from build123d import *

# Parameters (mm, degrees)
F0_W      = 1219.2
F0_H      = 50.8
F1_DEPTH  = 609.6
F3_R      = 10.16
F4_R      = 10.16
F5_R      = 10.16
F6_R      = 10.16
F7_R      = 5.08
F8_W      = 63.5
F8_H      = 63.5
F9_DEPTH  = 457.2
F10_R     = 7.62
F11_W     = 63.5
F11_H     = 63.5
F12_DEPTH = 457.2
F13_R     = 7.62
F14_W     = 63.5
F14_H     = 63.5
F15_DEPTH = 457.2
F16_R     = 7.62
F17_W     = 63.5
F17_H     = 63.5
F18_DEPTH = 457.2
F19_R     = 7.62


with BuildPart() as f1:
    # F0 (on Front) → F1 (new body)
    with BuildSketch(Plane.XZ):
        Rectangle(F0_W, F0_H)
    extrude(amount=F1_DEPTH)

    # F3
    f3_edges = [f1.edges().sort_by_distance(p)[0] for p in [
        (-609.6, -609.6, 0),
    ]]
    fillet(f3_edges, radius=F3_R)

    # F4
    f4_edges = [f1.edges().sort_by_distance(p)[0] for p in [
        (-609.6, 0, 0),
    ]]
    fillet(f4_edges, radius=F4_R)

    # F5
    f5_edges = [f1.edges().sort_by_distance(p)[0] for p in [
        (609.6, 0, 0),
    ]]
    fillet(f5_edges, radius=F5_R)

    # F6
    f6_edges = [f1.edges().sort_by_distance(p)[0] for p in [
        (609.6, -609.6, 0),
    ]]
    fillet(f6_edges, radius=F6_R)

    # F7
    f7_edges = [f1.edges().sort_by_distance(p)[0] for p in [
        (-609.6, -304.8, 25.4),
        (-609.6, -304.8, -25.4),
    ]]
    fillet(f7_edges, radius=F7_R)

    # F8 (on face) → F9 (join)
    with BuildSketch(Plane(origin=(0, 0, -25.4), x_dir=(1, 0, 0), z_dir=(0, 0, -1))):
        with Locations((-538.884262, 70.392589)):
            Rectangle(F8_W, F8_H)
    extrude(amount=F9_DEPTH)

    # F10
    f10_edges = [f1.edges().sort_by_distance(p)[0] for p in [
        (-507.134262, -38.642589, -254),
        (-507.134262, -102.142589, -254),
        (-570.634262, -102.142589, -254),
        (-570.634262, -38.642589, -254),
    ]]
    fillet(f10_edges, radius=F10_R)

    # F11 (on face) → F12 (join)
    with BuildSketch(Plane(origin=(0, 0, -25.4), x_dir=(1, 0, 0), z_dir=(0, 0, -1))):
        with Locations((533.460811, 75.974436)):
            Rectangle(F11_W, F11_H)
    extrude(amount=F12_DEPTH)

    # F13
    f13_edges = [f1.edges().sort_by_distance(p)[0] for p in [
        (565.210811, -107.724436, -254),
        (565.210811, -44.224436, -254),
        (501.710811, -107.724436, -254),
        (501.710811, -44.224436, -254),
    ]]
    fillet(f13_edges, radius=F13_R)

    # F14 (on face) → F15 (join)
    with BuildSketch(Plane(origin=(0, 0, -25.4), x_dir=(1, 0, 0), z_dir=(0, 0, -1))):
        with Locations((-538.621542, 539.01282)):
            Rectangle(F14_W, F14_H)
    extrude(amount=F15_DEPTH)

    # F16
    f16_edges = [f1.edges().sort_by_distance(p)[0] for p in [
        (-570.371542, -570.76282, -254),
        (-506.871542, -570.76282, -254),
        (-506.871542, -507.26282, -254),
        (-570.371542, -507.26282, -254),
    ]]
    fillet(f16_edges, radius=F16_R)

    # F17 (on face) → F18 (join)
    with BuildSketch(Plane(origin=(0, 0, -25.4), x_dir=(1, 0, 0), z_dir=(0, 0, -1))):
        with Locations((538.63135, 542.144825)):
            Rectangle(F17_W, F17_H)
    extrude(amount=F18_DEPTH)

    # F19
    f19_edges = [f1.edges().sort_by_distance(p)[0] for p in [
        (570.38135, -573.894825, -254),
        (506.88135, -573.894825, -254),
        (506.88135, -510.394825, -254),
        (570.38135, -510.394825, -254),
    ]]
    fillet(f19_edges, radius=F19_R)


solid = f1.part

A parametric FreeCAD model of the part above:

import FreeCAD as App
import Part
import Sketcher

V = App.Vector
Q = App.Units.Quantity


def edges_at(feature, points):
    """Names of the edges that pass closest to the given points."""
    edges = feature.Shape.Edges
    near = lambda p: min(range(len(edges)), key=lambda i: edges[i].distToShape(Part.Vertex(*p))[0])
    return sorted({f"Edge{near(p) + 1}" for p in points})

doc = App.newDocument("Part")
body = doc.addObject("PartDesign::Body", "Body")

# Sketch on XZ plane
sketch1 = body.newObject("Sketcher::SketchObject", "Sketch")
sketch1.AttachmentSupport = (doc.getObject("XZ_Plane"), [""])
sketch1.MapMode = "FlatFace"
sketch1.addGeometry([
    Part.LineSegment(V(-610, 25, 0), V(-610, -25, 0)),
    Part.LineSegment(V(-610, -25, 0), V(610, -25, 0)),
    Part.LineSegment(V(610, -25, 0), V(610, 25, 0)),
    Part.LineSegment(V(610, 25, 0), V(-610, 25, 0)),
], False)
sketch1.addConstraint([
    Sketcher.Constraint("Coincident", 0, 2, 1, 1),
    Sketcher.Constraint("Coincident", 1, 2, 2, 1),
    Sketcher.Constraint("Coincident", 2, 2, 3, 1),
    Sketcher.Constraint("Coincident", 3, 2, 0, 1),
    Sketcher.Constraint("Vertical", 0),
    Sketcher.Constraint("Horizontal", 1),
    Sketcher.Constraint("Vertical", 2),
    Sketcher.Constraint("Horizontal", 3),
    Sketcher.Constraint("Symmetric", 0, 2, 2, 2, -1, 1),
    Sketcher.Constraint("DistanceX", 1, 1, 1, 2, Q("48 in")),
    Sketcher.Constraint("DistanceY", 0, 2, 0, 1, Q("2 in")),
])
pad1 = body.newObject("PartDesign::Pad", "Pad")
pad1.Profile = sketch1
pad1.Length = Q("24 in")
doc.recompute()

fillet = body.newObject("PartDesign::Fillet", "Fillet")
fillet.Base = (pad1, edges_at(pad1, [(-609.6, -609.6, 0)]))
fillet.Radius = Q("0.4 in")
doc.recompute()

fillet2 = body.newObject("PartDesign::Fillet", "Fillet001")
fillet2.Base = (fillet, edges_at(fillet, [(-609.6, 0, 0)]))
fillet2.Radius = Q("0.4 in")
doc.recompute()

fillet3 = body.newObject("PartDesign::Fillet", "Fillet002")
fillet3.Base = (fillet2, edges_at(fillet2, [(609.6, 0, 0)]))
fillet3.Radius = Q("0.4 in")
doc.recompute()

fillet4 = body.newObject("PartDesign::Fillet", "Fillet003")
fillet4.Base = (fillet3, edges_at(fillet3, [(609.6, -609.6, 0)]))
fillet4.Radius = Q("0.4 in")
doc.recompute()

fillet5 = body.newObject("PartDesign::Fillet", "Fillet004")
fillet5.Base = (fillet4, edges_at(fillet4, [(-609.6, -304.8, 25.4), (-609.6, -304.8, -25.4)]))
fillet5.Radius = Q("0.2 in")

# Sketch on XY plane
sketch2 = body.newObject("Sketcher::SketchObject", "Sketch001")
sketch2.AttachmentSupport = (doc.getObject("XY_Plane"), [""])
sketch2.MapMode = "FlatFace"
sketch2.AttachmentOffset = App.Placement(V(0, 0, -1 * 25.4), App.Rotation())
sketch2.addGeometry([
    Part.LineSegment(V(-571, -102, 0), V(-571, -39, 0)),
    Part.LineSegment(V(-571, -39, 0), V(-507, -39, 0)),
    Part.LineSegment(V(-507, -39, 0), V(-507, -102, 0)),
    Part.LineSegment(V(-507, -102, 0), V(-571, -102, 0)),
], False)
sketch2.addConstraint([
    Sketcher.Constraint("Coincident", 0, 2, 1, 1),
    Sketcher.Constraint("Coincident", 1, 2, 2, 1),
    Sketcher.Constraint("Coincident", 2, 2, 3, 1),
    Sketcher.Constraint("Coincident", 3, 2, 0, 1),
    Sketcher.Constraint("Vertical", 0),
    Sketcher.Constraint("Horizontal", 1),
    Sketcher.Constraint("Vertical", 2),
    Sketcher.Constraint("Horizontal", 3),
    Sketcher.Constraint("Equal", 3, 0),
    Sketcher.Constraint("DistanceX", 1, 1, 1, 2, Q("2.5 in")),
    Sketcher.Constraint("DistanceX", 0, 2, -1, 1, Q("570.634262 mm")),
    Sketcher.Constraint("DistanceY", 0, 2, -1, 1, Q("38.642589 mm")),
])
pad2 = body.newObject("PartDesign::Pad", "Pad001")
pad2.Profile = sketch2
pad2.Length = Q("18 in")
pad2.Reversed = True
doc.recompute()

fillet6 = body.newObject("PartDesign::Fillet", "Fillet005")
fillet6.Base = (pad2, edges_at(pad2, [
    (-507.134, -38.643, -254),
    (-507.134, -102.143, -254),
    (-570.634, -102.143, -254),
    (-570.634, -38.643, -254),
]))
fillet6.Radius = Q("0.3 in")

# Sketch on XY plane
sketch3 = body.newObject("Sketcher::SketchObject", "Sketch002")
sketch3.AttachmentSupport = (doc.getObject("XY_Plane"), [""])
sketch3.MapMode = "FlatFace"
sketch3.AttachmentOffset = App.Placement(V(0, 0, -1 * 25.4), App.Rotation())
sketch3.addGeometry([
    Part.LineSegment(V(502, -108, 0), V(502, -44, 0)),
    Part.LineSegment(V(502, -44, 0), V(565, -44, 0)),
    Part.LineSegment(V(565, -44, 0), V(565, -108, 0)),
    Part.LineSegment(V(565, -108, 0), V(502, -108, 0)),
], False)
sketch3.addConstraint([
    Sketcher.Constraint("Coincident", 0, 2, 1, 1),
    Sketcher.Constraint("Coincident", 1, 2, 2, 1),
    Sketcher.Constraint("Coincident", 2, 2, 3, 1),
    Sketcher.Constraint("Coincident", 3, 2, 0, 1),
    Sketcher.Constraint("Vertical", 0),
    Sketcher.Constraint("Horizontal", 1),
    Sketcher.Constraint("Vertical", 2),
    Sketcher.Constraint("Horizontal", 3),
    Sketcher.Constraint("Equal", 3, 0),
    Sketcher.Constraint("DistanceX", 1, 1, 1, 2, Q("2.5 in")),
    Sketcher.Constraint("DistanceX", -1, 1, 0, 2, Q("501.710811 mm")),
    Sketcher.Constraint("DistanceY", 0, 2, -1, 1, Q("44.224436 mm")),
])
pad3 = body.newObject("PartDesign::Pad", "Pad002")
pad3.Profile = sketch3
pad3.Length = Q("18 in")
pad3.Reversed = True
doc.recompute()

fillet7 = body.newObject("PartDesign::Fillet", "Fillet006")
fillet7.Base = (pad3, edges_at(pad3, [
    (565.211, -107.724, -254),
    (565.211, -44.224, -254),
    (501.711, -107.724, -254),
    (501.711, -44.224, -254),
]))
fillet7.Radius = Q("0.3 in")

# Sketch on XY plane
sketch4 = body.newObject("Sketcher::SketchObject", "Sketch003")
sketch4.AttachmentSupport = (doc.getObject("XY_Plane"), [""])
sketch4.MapMode = "FlatFace"
sketch4.AttachmentOffset = App.Placement(V(0, 0, -1 * 25.4), App.Rotation())
sketch4.addGeometry([
    Part.LineSegment(V(-570, -571, 0), V(-570, -507, 0)),
    Part.LineSegment(V(-570, -507, 0), V(-507, -507, 0)),
    Part.LineSegment(V(-507, -507, 0), V(-507, -571, 0)),
    Part.LineSegment(V(-507, -571, 0), V(-570, -571, 0)),
], False)
sketch4.addConstraint([
    Sketcher.Constraint("Coincident", 0, 2, 1, 1),
    Sketcher.Constraint("Coincident", 1, 2, 2, 1),
    Sketcher.Constraint("Coincident", 2, 2, 3, 1),
    Sketcher.Constraint("Coincident", 3, 2, 0, 1),
    Sketcher.Constraint("Vertical", 0),
    Sketcher.Constraint("Horizontal", 1),
    Sketcher.Constraint("Vertical", 2),
    Sketcher.Constraint("Horizontal", 3),
    Sketcher.Constraint("Equal", 3, 0),
    Sketcher.Constraint("DistanceX", 1, 1, 1, 2, Q("2.5 in")),
    Sketcher.Constraint("DistanceX", 0, 2, -1, 1, Q("570.371542 mm")),
    Sketcher.Constraint("DistanceY", 0, 2, -1, 1, Q("507.26282 mm")),
])
pad4 = body.newObject("PartDesign::Pad", "Pad003")
pad4.Profile = sketch4
pad4.Length = Q("18 in")
pad4.Reversed = True
doc.recompute()

fillet8 = body.newObject("PartDesign::Fillet", "Fillet007")
fillet8.Base = (pad4, edges_at(pad4, [
    (-570.372, -570.763, -254),
    (-506.872, -570.763, -254),
    (-506.872, -507.263, -254),
    (-570.372, -507.263, -254),
]))
fillet8.Radius = Q("0.3 in")

# Sketch on XY plane
sketch5 = body.newObject("Sketcher::SketchObject", "Sketch004")
sketch5.AttachmentSupport = (doc.getObject("XY_Plane"), [""])
sketch5.MapMode = "FlatFace"
sketch5.AttachmentOffset = App.Placement(V(0, 0, -1 * 25.4), App.Rotation())
sketch5.addGeometry([
    Part.LineSegment(V(507, -574, 0), V(507, -510, 0)),
    Part.LineSegment(V(507, -510, 0), V(570, -510, 0)),
    Part.LineSegment(V(570, -510, 0), V(570, -574, 0)),
    Part.LineSegment(V(570, -574, 0), V(507, -574, 0)),
], False)
sketch5.addConstraint([
    Sketcher.Constraint("Coincident", 0, 2, 1, 1),
    Sketcher.Constraint("Coincident", 1, 2, 2, 1),
    Sketcher.Constraint("Coincident", 2, 2, 3, 1),
    Sketcher.Constraint("Coincident", 3, 2, 0, 1),
    Sketcher.Constraint("Vertical", 0),
    Sketcher.Constraint("Horizontal", 1),
    Sketcher.Constraint("Vertical", 2),
    Sketcher.Constraint("Horizontal", 3),
    Sketcher.Constraint("Equal", 3, 0),
    Sketcher.Constraint("DistanceX", 1, 1, 1, 2, Q("2.5 in")),
    Sketcher.Constraint("DistanceX", -1, 1, 0, 2, Q("506.88135 mm")),
    Sketcher.Constraint("DistanceY", 0, 2, -1, 1, Q("510.394825 mm")),
])
pad5 = body.newObject("PartDesign::Pad", "Pad004")
pad5.Profile = sketch5
pad5.Length = Q("18 in")
pad5.Reversed = True
doc.recompute()

fillet9 = body.newObject("PartDesign::Fillet", "Fillet008")
fillet9.Base = (pad5, edges_at(pad5, [
    (570.381, -573.895, -254),
    (506.881, -573.895, -254),
    (506.881, -510.395, -254),
    (570.381, -510.395, -254),
]))
fillet9.Radius = Q("0.3 in")

doc.recompute()
